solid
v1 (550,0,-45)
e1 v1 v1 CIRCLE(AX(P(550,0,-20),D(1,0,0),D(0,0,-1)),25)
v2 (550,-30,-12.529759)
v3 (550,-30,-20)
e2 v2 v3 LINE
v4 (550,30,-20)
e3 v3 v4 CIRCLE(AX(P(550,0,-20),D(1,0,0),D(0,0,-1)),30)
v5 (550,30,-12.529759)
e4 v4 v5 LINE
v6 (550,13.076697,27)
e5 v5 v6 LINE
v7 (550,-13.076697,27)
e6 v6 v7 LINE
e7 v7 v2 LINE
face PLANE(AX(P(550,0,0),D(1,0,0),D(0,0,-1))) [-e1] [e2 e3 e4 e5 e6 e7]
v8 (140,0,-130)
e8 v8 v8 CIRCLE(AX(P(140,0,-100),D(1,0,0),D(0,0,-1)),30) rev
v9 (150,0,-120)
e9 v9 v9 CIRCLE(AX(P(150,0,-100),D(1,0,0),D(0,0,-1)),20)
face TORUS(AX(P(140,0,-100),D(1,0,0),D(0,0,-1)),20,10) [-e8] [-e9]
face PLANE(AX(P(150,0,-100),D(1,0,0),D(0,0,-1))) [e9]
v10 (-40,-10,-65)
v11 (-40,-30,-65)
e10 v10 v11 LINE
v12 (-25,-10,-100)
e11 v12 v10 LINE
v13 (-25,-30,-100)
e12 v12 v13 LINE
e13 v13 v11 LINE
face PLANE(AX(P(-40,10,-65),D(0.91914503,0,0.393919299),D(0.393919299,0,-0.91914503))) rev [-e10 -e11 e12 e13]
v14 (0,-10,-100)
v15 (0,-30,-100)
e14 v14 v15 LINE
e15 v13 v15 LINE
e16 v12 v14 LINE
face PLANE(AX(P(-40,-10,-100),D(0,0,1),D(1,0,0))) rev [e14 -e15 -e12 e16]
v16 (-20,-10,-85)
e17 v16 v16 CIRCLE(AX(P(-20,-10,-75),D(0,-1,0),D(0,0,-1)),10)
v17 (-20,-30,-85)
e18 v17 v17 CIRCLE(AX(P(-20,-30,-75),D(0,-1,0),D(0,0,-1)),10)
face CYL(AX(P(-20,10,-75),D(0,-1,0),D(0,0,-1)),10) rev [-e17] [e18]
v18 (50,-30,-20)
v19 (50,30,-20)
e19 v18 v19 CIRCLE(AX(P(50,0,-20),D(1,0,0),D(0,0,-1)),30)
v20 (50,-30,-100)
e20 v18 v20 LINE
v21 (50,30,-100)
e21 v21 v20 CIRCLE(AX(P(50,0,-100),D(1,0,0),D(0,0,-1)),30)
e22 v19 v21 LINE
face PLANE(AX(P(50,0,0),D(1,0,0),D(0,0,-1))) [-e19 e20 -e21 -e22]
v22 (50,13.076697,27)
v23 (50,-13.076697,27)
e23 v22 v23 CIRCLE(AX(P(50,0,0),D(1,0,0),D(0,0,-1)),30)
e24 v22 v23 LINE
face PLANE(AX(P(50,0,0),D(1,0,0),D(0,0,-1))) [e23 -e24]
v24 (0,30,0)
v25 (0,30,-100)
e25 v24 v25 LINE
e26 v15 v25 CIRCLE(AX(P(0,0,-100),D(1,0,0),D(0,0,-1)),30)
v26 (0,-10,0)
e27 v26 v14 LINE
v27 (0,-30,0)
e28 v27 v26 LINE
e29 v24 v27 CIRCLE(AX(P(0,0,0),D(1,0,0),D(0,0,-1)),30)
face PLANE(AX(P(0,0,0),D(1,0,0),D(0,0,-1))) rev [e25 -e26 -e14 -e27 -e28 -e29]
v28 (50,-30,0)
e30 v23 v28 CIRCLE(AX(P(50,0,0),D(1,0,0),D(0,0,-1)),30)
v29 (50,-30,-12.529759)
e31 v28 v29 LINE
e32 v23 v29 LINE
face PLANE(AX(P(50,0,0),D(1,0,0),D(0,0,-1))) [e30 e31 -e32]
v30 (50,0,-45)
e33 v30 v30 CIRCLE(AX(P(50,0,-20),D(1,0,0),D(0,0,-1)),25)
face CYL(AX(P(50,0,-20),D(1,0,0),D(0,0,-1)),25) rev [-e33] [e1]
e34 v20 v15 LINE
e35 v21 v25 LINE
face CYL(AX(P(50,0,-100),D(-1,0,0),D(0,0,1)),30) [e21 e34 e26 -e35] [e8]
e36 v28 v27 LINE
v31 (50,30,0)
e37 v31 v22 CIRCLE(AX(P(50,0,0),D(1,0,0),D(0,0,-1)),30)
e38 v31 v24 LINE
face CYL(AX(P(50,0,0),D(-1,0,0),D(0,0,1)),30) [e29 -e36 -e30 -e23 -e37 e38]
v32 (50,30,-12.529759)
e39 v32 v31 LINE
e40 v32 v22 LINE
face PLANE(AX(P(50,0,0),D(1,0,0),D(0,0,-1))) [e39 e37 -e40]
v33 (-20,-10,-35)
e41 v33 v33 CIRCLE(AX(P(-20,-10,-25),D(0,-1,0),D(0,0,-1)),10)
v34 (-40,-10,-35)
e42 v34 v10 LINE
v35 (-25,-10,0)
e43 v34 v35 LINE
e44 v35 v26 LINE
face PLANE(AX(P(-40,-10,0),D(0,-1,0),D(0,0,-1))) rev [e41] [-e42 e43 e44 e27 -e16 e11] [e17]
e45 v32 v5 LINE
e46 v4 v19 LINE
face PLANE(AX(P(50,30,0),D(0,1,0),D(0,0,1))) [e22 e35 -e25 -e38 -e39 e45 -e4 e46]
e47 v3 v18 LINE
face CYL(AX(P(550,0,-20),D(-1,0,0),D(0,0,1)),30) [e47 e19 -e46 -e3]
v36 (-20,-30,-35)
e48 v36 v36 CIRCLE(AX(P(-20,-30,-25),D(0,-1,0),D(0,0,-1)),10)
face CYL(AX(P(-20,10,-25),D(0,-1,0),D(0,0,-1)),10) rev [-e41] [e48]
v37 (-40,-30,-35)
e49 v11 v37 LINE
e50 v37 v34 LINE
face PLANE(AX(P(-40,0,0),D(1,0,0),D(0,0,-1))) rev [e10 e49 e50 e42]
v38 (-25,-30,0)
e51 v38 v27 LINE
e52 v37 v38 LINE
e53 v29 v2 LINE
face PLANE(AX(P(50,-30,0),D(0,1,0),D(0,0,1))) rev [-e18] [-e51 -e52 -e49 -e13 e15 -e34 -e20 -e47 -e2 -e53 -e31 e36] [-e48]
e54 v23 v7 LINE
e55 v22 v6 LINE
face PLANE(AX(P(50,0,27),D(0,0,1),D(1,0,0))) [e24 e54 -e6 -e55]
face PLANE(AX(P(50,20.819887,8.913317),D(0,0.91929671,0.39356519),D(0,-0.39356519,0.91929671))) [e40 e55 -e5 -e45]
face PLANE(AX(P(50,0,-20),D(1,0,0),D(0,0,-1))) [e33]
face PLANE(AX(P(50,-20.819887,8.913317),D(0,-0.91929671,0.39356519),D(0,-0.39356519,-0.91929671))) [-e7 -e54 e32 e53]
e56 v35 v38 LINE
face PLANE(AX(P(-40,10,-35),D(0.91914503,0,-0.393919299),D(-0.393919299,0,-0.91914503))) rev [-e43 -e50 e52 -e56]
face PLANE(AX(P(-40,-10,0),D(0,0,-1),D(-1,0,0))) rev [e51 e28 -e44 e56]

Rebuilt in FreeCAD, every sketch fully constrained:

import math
import FreeCAD as App
import Part
import Sketcher
from FreeCAD import Vector
Q = App.Units.Quantity


def edges_at(feature, points):
    """Names of the edges that pass closest to the given points."""
    edges = feature.Shape.Edges
    near = lambda p: min(range(len(edges)), key=lambda i: edges[i].distToShape(Part.Vertex(*p))[0])
    return sorted({f"Edge{near(p) + 1}" for p in points})

doc = App.newDocument("Part")
body = doc.addObject("PartDesign::Body", "Body")

sketch1 = body.newObject("Sketcher::SketchObject", "Sketch")
sketch1.AttachmentSupport = (doc.getObject("YZ_Plane"), [""])
sketch1.MapMode = "FlatFace"
sketch1.addGeometry([
    Part.LineSegment(Vector(30, -100, 0), Vector(30, 0, 0)),
    Part.ArcOfCircle(Part.Circle(Vector(0, 0, 0), Vector(0, 0, 1), 30), math.radians(0), math.radians(180)),
    Part.LineSegment(Vector(-30, 0, 0), Vector(-30, -100, 0)),
    Part.ArcOfCircle(Part.Circle(Vector(0, -100, 0), Vector(0, 0, 1), 30), math.radians(180), math.radians(360)),
], False)
sketch1.addConstraint([
    Sketcher.Constraint("Tangent", 0, 2, 1, 1),
    Sketcher.Constraint("Tangent", 1, 2, 2, 1),
    Sketcher.Constraint("Tangent", 2, 2, 3, 1),
    Sketcher.Constraint("Tangent", 3, 2, 0, 1),
    Sketcher.Constraint("Vertical", 0),
    Sketcher.Constraint("Vertical", 2),
    Sketcher.Constraint("Coincident", 1, 3, -1, 1),
    Sketcher.Constraint("Radius", 1, Q("30 mm")),
    Sketcher.Constraint("DistanceY", 0, 1, 0, 2, Q("100 mm")),
])
pad1 = body.newObject("PartDesign::Pad", "Pad")
pad1.Profile = sketch1
pad1.Length = 50

sketch2 = body.newObject("Sketcher::SketchObject", "Sketch001")
sketch2.AttachmentSupport = (doc.getObject("YZ_Plane"), [""])
sketch2.MapMode = "FlatFace"
sketch2.AttachmentOffset = App.Placement(Vector(0, 0, 50), App.Rotation())
sketch2.addGeometry(Part.Circle(Vector(0, -100, 0), Vector(0, 0, 1), 30), False)
sketch2.addConstraint([
    Sketcher.Constraint("PointOnObject", 0, 3, -2),
    Sketcher.Constraint("Diameter", 0, Q("60 mm")),
    Sketcher.Constraint("DistanceY", 0, 3, -1, 1, Q("100 mm")),
])
pad2 = body.newObject("PartDesign::Pad", "Pad001")
pad2.Profile = sketch2
pad2.Length = 100

sketch3 = body.newObject("Sketcher::SketchObject", "Sketch002")
sketch3.AttachmentSupport = (doc.getObject("YZ_Plane"), [""])
sketch3.MapMode = "FlatFace"
sketch3.AttachmentOffset = App.Placement(Vector(0, 0, 50), App.Rotation())
sketch3.addGeometry([
    Part.LineSegment(Vector(30, -20, 0), Vector(30, 0, 0)),
    Part.ArcOfCircle(Part.Circle(Vector(0, 0, 0), Vector(0, 0, 1), 30), math.radians(0), math.radians(180)),
    Part.LineSegment(Vector(-30, 0, 0), Vector(-30, -20, 0)),
    Part.ArcOfCircle(Part.Circle(Vector(0, -20, 0), Vector(0, 0, 1), 30), math.radians(180), math.radians(360)),
], False)
sketch3.addConstraint([
    Sketcher.Constraint("Tangent", 0, 2, 1, 1),
    Sketcher.Constraint("Tangent", 1, 2, 2, 1),
    Sketcher.Constraint("Tangent", 2, 2, 3, 1),
    Sketcher.Constraint("Tangent", 3, 2, 0, 1),
    Sketcher.Constraint("Vertical", 0),
    Sketcher.Constraint("Vertical", 2),
    Sketcher.Constraint("Coincident", 1, 3, -1, 1),
    Sketcher.Constraint("Radius", 1, Q("30 mm")),
    Sketcher.Constraint("DistanceY", 0, 1, 0, 2, Q("20 mm")),
])
pad3 = body.newObject("PartDesign::Pad", "Pad002")
pad3.Profile = sketch3
pad3.Length = 500

sketch4 = body.newObject("Sketcher::SketchObject", "Sketch003")
sketch4.AttachmentSupport = (doc.getObject("YZ_Plane"), [""])
sketch4.MapMode = "FlatFace"
sketch4.AttachmentOffset = App.Placement(Vector(0, 0, 550), App.Rotation())
sketch4.addGeometry(Part.Circle(Vector(0, -20, 0), Vector(0, 0, 1), 25), False)
sketch4.addConstraint([
    Sketcher.Constraint("PointOnObject", 0, 3, -2),
    Sketcher.Constraint("Diameter", 0, Q("50 mm")),
    Sketcher.Constraint("DistanceY", 0, 3, -1, 1, Q("20 mm")),
])
pocket1 = body.newObject("PartDesign::Pocket", "Pocket")
pocket1.Profile = sketch4
pocket1.Length = 500

sketch5 = body.newObject("Sketcher::SketchObject", "Sketch004")
sketch5.AttachmentSupport = (doc.getObject("YZ_Plane"), [""])
sketch5.MapMode = "FlatFace"
sketch5.AttachmentOffset = App.Placement(Vector(0, 0, 50), App.Rotation())
sketch5.addGeometry([
    Part.ArcOfCircle(Part.Circle(Vector(0, 0, 0), Vector(0, 0, 1), 30), math.radians(0), math.radians(64)),
    Part.LineSegment(Vector(13, 27, 0), Vector(30, -13, 0)),
    Part.LineSegment(Vector(30, -13, 0), Vector(30, 0, 0)),
    Part.LineSegment(Vector(-30, -13, 0), Vector(-13, 27, 0)),
    Part.ArcOfCircle(Part.Circle(Vector(0, 0, 0), Vector(0, 0, 1), 30), math.radians(116), math.radians(180)),
    Part.LineSegment(Vector(-30, 0, 0), Vector(-30, -13, 0)),
    Part.ArcOfCircle(Part.Circle(Vector(0, 0, 0), Vector(0, 0, 1), 30), math.radians(64), math.radians(90)),
    Part.ArcOfCircle(Part.Circle(Vector(0, 0, 0), Vector(0, 0, 1), 30), math.radians(90), math.radians(116)),
    Part.LineSegment(Vector(-13, 27, 0), Vector(13, 27, 0)),
], False)
sketch5.addConstraint([
    Sketcher.Constraint("Coincident", 0, 2, 1, 1),
    Sketcher.Constraint("Coincident", 1, 2, 2, 1),
    Sketcher.Constraint("Tangent", 2, 2, 0, 1),
    Sketcher.Constraint("Coincident", 3, 2, 4, 1),
    Sketcher.Constraint("Tangent", 4, 2, 5, 1),
    Sketcher.Constraint("Coincident", 5, 2, 3, 1),
    Sketcher.Constraint("Tangent", 6, 2, 7, 1),
    Sketcher.Constraint("Coincident", 7, 2, 8, 1),
    Sketcher.Constraint("Coincident", 8, 2, 6, 1),
    Sketcher.Constraint("Vertical", 2),
    Sketcher.Constraint("Vertical", 5),
    Sketcher.Constraint("Horizontal", 8),
    Sketcher.Constraint("Coincident", 0, 3, -1, 1),
    Sketcher.Constraint("Coincident", 4, 3, -1, 1),
    Sketcher.Constraint("Coincident", 6, 3, -1, 1),
    Sketcher.Constraint("Coincident", 7, 2, 3, 2),
    Sketcher.Constraint("Coincident", 8, 2, 0, 2),
    Sketcher.Constraint("Equal", 0, 4),
    Sketcher.Constraint("PointOnObject", 6, 2, -2),
    Sketcher.Constraint("Horizontal", 1, 2, 5, 2),
    Sketcher.Constraint("Radius", 0, Q("30 mm")),
    Sketcher.Constraint("Distance", 1, Q("43 mm")),
    Sketcher.Constraint("DistanceY", -1, 1, 0, 2, Q("27 mm")),
])
pocket2 = body.newObject("PartDesign::Pocket", "Pocket001")
pocket2.Profile = sketch5
pocket2.Length = 500
pocket2.Reversed = True
doc.recompute()

fillet = body.newObject("PartDesign::Fillet", "Fillet")
fillet.Base = (pocket2, edges_at(pocket2, [(150, -30, -100)]))
fillet.Radius = 10

sketch6 = body.newObject("Sketcher::SketchObject", "Sketch005")
sketch6.AttachmentSupport = (doc.getObject("YZ_Plane"), [""])
sketch6.MapMode = "FlatFace"
sketch6.addGeometry([
    Part.LineSegment(Vector(-10, -100, 0), Vector(-30, -100, 0)),
    Part.LineSegment(Vector(-30, -100, 0), Vector(-30, 0, 0)),
    Part.LineSegment(Vector(-30, 0, 0), Vector(-10, 0, 0)),
    Part.LineSegment(Vector(-10, 0, 0), Vector(-10, -100, 0)),
], False)
sketch6.addConstraint([
    Sketcher.Constraint("Coincident", 0, 2, 1, 1),
    Sketcher.Constraint("Coincident", 1, 2, 2, 1),
    Sketcher.Constraint("Coincident", 2, 2, 3, 1),
    Sketcher.Constraint("Coincident", 3, 2, 0, 1),
    Sketcher.Constraint("Horizontal", 0),
    Sketcher.Constraint("Vertical", 1),
    Sketcher.Constraint("Horizontal", 2),
    Sketcher.Constraint("Vertical", 3),
    Sketcher.Constraint("PointOnObject", 1, 2, -1),
    Sketcher.Constraint("DistanceX", 0, 2, 0, 1, Q("20 mm")),
    Sketcher.Constraint("DistanceY", 1, 1, 1, 2, Q("100 mm")),
    Sketcher.Constraint("DistanceX", 0, 2, -1, 1, Q("30 mm")),
])
pad4 = body.newObject("PartDesign::Pad", "Pad003")
pad4.Profile = sketch6
pad4.Length = 40
pad4.Reversed = True

sketch7 = body.newObject("Sketcher::SketchObject", "Sketch006")
sketch7.AttachmentSupport = (doc.getObject("XZ_Plane"), [""])
sketch7.MapMode = "FlatFace"
sketch7.AttachmentOffset = App.Placement(Vector(0, 0, 30), App.Rotation())
sketch7.addGeometry([
    Part.LineSegment(Vector(-40, -35, 0), Vector(-25, 0, 0)),
    Part.LineSegment(Vector(-25, 0, 0), Vector(-40, 0, 0)),
    Part.LineSegment(Vector(-40, 0, 0), Vector(-40, -35, 0)),
    Part.LineSegment(Vector(-25, -100, 0), Vector(-40, -65, 0)),
    Part.LineSegment(Vector(-40, -65, 0), Vector(-40, -100, 0)),
    Part.LineSegment(Vector(-40, -100, 0), Vector(-25, -100, 0)),
], False)
sketch7.addConstraint([
    Sketcher.Constraint("Coincident", 0, 2, 1, 1),
    Sketcher.Constraint("Coincident", 1, 2, 2, 1),
    Sketcher.Constraint("Coincident", 2, 2, 0, 1),
    Sketcher.Constraint("Coincident", 3, 2, 4, 1),
    Sketcher.Constraint("Coincident", 4, 2, 5, 1),
    Sketcher.Constraint("Coincident", 5, 2, 3, 1),
    Sketcher.Constraint("Horizontal", 1),
    Sketcher.Constraint("Vertical", 2),
    Sketcher.Constraint("Vertical", 4),
    Sketcher.Constraint("Horizontal", 5),
    Sketcher.Constraint("PointOnObject", 0, 2, -1),
    Sketcher.Constraint("Vertical", 2, 2, 3, 2),
    Sketcher.Constraint("Vertical", 0, 2, 5, 2),
    Sketcher.Constraint("Equal", 2, 4),
    Sketcher.Constraint("DistanceX", 1, 2, 1, 1, Q("15 mm")),
    Sketcher.Constraint("DistanceY", 2, 2, 2, 1, Q("35 mm")),
    Sketcher.Constraint("DistanceX", 0, 2, -1, 1, Q("25 mm")),
    Sketcher.Constraint("DistanceY", 3, 2, -1, 1, Q("65 mm")),
])
pocket3 = body.newObject("PartDesign::Pocket", "Pocket002")
pocket3.Profile = sketch7
pocket3.Length = 40

sketch8 = body.newObject("Sketcher::SketchObject", "Sketch007")
sketch8.AttachmentSupport = (doc.getObject("XZ_Plane"), [""])
sketch8.MapMode = "FlatFace"
sketch8.AttachmentOffset = App.Placement(Vector(0, 0, 30), App.Rotation())
sketch8.addGeometry([
    Part.Circle(Vector(-20, -25, 0), Vector(0, 0, 1), 10),
    Part.Circle(Vector(-20, -75, 0), Vector(0, 0, 1), 10),
], False)
sketch8.addConstraint([
    Sketcher.Constraint("Equal", 0, 1),
    Sketcher.Constraint("Vertical", 0, 3, 1, 3),
    Sketcher.Constraint("Diameter", 0, Q("20 mm")),
    Sketcher.Constraint("DistanceX", 0, 3, -1, 1, Q("20 mm")),
    Sketcher.Constraint("DistanceY", 0, 3, -1, 1, Q("25 mm")),
    Sketcher.Constraint("DistanceY", 1, 3, -1, 1, Q("75 mm")),
])
pocket4 = body.newObject("PartDesign::Pocket", "Pocket003")
pocket4.Profile = sketch8
pocket4.Length = 40

doc.recompute()
